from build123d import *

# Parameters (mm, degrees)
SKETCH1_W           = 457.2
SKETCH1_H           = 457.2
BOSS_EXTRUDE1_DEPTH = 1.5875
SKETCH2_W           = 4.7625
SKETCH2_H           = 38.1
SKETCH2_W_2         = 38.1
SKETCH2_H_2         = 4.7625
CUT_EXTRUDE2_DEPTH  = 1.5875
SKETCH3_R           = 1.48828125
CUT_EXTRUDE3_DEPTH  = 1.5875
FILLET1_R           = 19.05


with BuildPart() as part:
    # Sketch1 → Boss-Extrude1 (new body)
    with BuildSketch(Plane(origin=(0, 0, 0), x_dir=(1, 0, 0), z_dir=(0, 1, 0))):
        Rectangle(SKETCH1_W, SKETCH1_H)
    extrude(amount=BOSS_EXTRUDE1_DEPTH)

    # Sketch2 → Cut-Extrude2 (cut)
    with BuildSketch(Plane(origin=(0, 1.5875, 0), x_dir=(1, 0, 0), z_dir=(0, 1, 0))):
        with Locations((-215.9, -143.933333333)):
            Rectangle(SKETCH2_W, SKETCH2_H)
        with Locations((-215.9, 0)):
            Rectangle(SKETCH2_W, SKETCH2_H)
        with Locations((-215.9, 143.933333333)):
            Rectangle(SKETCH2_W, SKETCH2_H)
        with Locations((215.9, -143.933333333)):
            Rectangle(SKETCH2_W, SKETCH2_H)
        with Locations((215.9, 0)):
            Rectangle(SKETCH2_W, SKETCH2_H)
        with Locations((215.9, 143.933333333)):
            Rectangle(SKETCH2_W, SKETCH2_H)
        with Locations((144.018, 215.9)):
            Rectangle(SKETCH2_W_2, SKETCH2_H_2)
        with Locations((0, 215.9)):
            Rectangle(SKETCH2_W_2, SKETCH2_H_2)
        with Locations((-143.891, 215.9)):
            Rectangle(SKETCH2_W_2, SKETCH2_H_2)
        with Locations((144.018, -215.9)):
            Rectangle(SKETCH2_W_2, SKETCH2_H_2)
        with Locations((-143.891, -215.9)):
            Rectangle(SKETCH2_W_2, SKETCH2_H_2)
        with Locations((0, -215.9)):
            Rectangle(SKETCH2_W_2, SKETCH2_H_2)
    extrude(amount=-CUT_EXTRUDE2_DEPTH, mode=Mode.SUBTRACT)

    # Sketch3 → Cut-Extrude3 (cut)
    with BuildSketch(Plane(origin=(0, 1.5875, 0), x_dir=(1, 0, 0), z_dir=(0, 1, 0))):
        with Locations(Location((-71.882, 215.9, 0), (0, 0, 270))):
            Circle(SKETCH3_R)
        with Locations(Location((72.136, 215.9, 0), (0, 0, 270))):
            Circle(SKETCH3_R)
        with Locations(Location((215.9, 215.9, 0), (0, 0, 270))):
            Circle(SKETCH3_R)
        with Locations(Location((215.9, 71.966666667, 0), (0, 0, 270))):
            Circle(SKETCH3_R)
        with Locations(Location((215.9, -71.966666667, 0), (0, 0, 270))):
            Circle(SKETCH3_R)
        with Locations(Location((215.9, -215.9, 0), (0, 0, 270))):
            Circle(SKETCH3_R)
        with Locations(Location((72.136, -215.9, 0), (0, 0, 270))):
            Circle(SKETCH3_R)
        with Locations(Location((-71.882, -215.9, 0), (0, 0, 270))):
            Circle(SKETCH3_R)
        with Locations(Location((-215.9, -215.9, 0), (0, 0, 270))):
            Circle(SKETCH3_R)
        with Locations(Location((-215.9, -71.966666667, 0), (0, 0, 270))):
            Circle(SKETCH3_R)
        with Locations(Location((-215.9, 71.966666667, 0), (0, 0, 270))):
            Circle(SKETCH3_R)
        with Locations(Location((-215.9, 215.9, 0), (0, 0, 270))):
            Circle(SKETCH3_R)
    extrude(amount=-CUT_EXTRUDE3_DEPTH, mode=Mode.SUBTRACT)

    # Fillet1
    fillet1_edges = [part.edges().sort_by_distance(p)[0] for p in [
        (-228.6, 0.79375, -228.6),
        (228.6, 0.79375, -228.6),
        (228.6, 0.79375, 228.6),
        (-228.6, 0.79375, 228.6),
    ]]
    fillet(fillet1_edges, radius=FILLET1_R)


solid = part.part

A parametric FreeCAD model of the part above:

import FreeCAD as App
import Part
import Sketcher
Q = App.Units.Quantity


def edges_at(feature, points):
    """Names of the edges that pass closest to the given points."""
    edges = feature.Shape.Edges
    near = lambda p: min(range(len(edges)), key=lambda i: edges[i].distToShape(Part.Vertex(*p))[0])
    return sorted({f"Edge{near(p) + 1}" for p in points})


def add_polygon(sketch, points):
    """Adds a closed chain of lines whose ends are joined by coincident constraints."""
    first, n = sketch.GeometryCount, len(points)
    for a, b in zip(points, points[1:] + points[:1]):
        sketch.addGeometry(Part.LineSegment(App.Vector(*a, 0), App.Vector(*b, 0)), False)
    for i in range(n):
        sketch.addConstraint(Sketcher.Constraint("Coincident", first + i, 2, first + (i + 1) % n, 1))

doc = App.newDocument("Part")
body = doc.addObject("PartDesign::Body", "Body")

# Sketch on XZ plane
sketch1 = body.newObject("Sketcher::SketchObject", "Sketch")
sketch1.AttachmentSupport = (doc.getObject("XZ_Plane"), [""])
sketch1.MapMode = "FlatFace"
add_polygon(sketch1, [(-229, -229), (-229, 229), (229, 229), (229, -229)])  # lines 0-3
sketch1.addConstraint([
    Sketcher.Constraint("Vertical", 0),
    Sketcher.Constraint("Horizontal", 1),
    Sketcher.Constraint("Vertical", 2),
    Sketcher.Constraint("Horizontal", 3),
    Sketcher.Constraint("Symmetric", 0, 2, 2, 2, -1, 1),
    Sketcher.Constraint("Equal", 3, 0),
    Sketcher.Constraint("DistanceX", 1, 1, 1, 2, Q("18 in")),
])
pad1 = body.newObject("PartDesign::Pad", "Pad")
pad1.Profile = sketch1
pad1.Length = Q("0.0625 in")
pad1.Reversed = True

# Sketch on XZ plane
sketch2 = body.newObject("Sketcher::SketchObject", "Sketch001")
sketch2.AttachmentSupport = (doc.getObject("XZ_Plane"), [""])
sketch2.MapMode = "FlatFace"
sketch2.AttachmentOffset = App.Placement(App.Vector(0, 0, -0.0625 * 25.4), App.Rotation())
add_polygon(sketch2, [(-218.3, 124.9), (-218.3, 163), (-213.5, 163), (-213.5, 124.9)])  # lines 0-3
add_polygon(sketch2, [(-218.3, -19.1), (-218.3, 19.1), (-213.5, 19.1), (-213.5, -19.1)])  # lines 4-7
add_polygon(sketch2, [(-218.3, -163), (-218.3, -124.9), (-213.5, -124.9), (-213.5, -163)])  # lines 8-11
add_polygon(sketch2, [(213.5, 124.9), (213.5, 163), (218.3, 163), (218.3, 124.9)])  # lines 12-15
add_polygon(sketch2, [(213.5, -19.1), (213.5, 19.1), (218.3, 19.1), (218.3, -19.1)])  # lines 16-19
add_polygon(sketch2, [(213.5, -163), (213.5, -124.9), (218.3, -124.9), (218.3, -163)])  # lines 20-23
add_polygon(sketch2, [(125, -218.3), (125, -213.5), (163.1, -213.5), (163.1, -218.3)])  # lines 24-27
add_polygon(sketch2, [(-19.1, -218.3), (-19.1, -213.5), (19.1, -213.5), (19.1, -218.3)])  # lines 28-31
add_polygon(sketch2, [(-162.9, -218.3), (-162.9, -213.5), (-124.8, -213.5), (-124.8, -218.3)])  # lines 32-35
add_polygon(sketch2, [(125, 213.5), (125, 218.3), (163.1, 218.3), (163.1, 213.5)])  # lines 36-39
add_polygon(sketch2, [(-162.9, 213.5), (-162.9, 218.3), (-124.8, 218.3), (-124.8, 213.5)])  # lines 40-43
add_polygon(sketch2, [(-19.1, 213.5), (-19.1, 218.3), (19.1, 218.3), (19.1, 213.5)])  # lines 44-47
sketch2.addConstraint([
    Sketcher.Constraint("Vertical", 0),
    Sketcher.Constraint("Horizontal", 1),
    Sketcher.Constraint("Vertical", 2),
    Sketcher.Constraint("Horizontal", 3),
    Sketcher.Constraint("Vertical", 4),
    Sketcher.Constraint("Horizontal", 5),
    Sketcher.Constraint("Vertical", 6),
    Sketcher.Constraint("Horizontal", 7),
    Sketcher.Constraint("Vertical", 8),
    Sketcher.Constraint("Horizontal", 9),
    Sketcher.Constraint("Vertical", 10),
    Sketcher.Constraint("Horizontal", 11),
    Sketcher.Constraint("Vertical", 12),
    Sketcher.Constraint("Horizontal", 13),
    Sketcher.Constraint("Vertical", 14),
    Sketcher.Constraint("Horizontal", 15),
    Sketcher.Constraint("Vertical", 16),
    Sketcher.Constraint("Horizontal", 17),
    Sketcher.Constraint("Vertical", 18),
    Sketcher.Constraint("Horizontal", 19),
    Sketcher.Constraint("Vertical", 20),
    Sketcher.Constraint("Horizontal", 21),
    Sketcher.Constraint("Vertical", 22),
    Sketcher.Constraint("Horizontal", 23),
    Sketcher.Constraint("Vertical", 24),
    Sketcher.Constraint("Horizontal", 25),
    Sketcher.Constraint("Vertical", 26),
    Sketcher.Constraint("Horizontal", 27),
    Sketcher.Constraint("Vertical", 28),
    Sketcher.Constraint("Horizontal", 29),
    Sketcher.Constraint("Vertical", 30),
    Sketcher.Constraint("Horizontal", 31),
    Sketcher.Constraint("Vertical", 32),
    Sketcher.Constraint("Horizontal", 33),
    Sketcher.Constraint("Vertical", 34),
    Sketcher.Constraint("Horizontal", 35),
    Sketcher.Constraint("Vertical", 36),
    Sketcher.Constraint("Horizontal", 37),
    Sketcher.Constraint("Vertical", 38),
    Sketcher.Constraint("Horizontal", 39),
    Sketcher.Constraint("Vertical", 40),
    Sketcher.Constraint("Horizontal", 41),
    Sketcher.Constraint("Vertical", 42),
    Sketcher.Constraint("Horizontal", 43),
    Sketcher.Constraint("Vertical", 44),
    Sketcher.Constraint("Horizontal", 45),
    Sketcher.Constraint("Vertical", 46),
    Sketcher.Constraint("Horizontal", 47),
    Sketcher.Constraint("Symmetric", 10, 2, 12, 2, -1, 1),
    Sketcher.Constraint("Symmetric", 8, 2, 14, 2, -1, 1),
    Sketcher.Constraint("Symmetric", 6, 2, 16, 2, -1, 1),
    Sketcher.Constraint("Symmetric", 4, 2, 18, 2, -1, 1),
    Sketcher.Constraint("Symmetric", 2, 2, 20, 2, -1, 1),
    Sketcher.Constraint("Symmetric", 0, 2, 22, 2, -1, 1),
    Sketcher.Constraint("Symmetric", 30, 2, 44, 2, -1, 1),
    Sketcher.Constraint("Symmetric", 28, 2, 46, 2, -1, 1),
    Sketcher.Constraint("Symmetric", 1, 2, 12, 2, -2),
    Sketcher.Constraint("Symmetric", 3, 2, 14, 2, -2),
    Sketcher.Constraint("Symmetric", 27, 2, 36, 2, -1),
    Sketcher.Constraint("Symmetric", 25, 2, 38, 2, -1),
    Sketcher.Constraint("Symmetric", 35, 2, 40, 2, -1),
    Sketcher.Constraint("Symmetric", 33, 2, 42, 2, -1),
    Sketcher.Constraint("Horizontal", 5, 2, 16, 2),
    Sketcher.Constraint("Horizontal", 25, 2, 28, 2),
    Sketcher.Constraint("Horizontal", 27, 2, 30, 2),
    Sketcher.Constraint("Horizontal", 29, 2, 32, 2),
    Sketcher.Constraint("Horizontal", 31, 2, 34, 2),
    Sketcher.Constraint("Vertical", 3, 2, 4, 2),
    Sketcher.Constraint("Vertical", 2, 2, 5, 2),
    Sketcher.Constraint("Vertical", 31, 2, 44, 2),
    Sketcher.Constraint("Equal", 27, 29),
    Sketcher.Constraint("Equal", 31, 33),
    Sketcher.Constraint("Equal", 47, 0),
    Sketcher.Constraint("Equal", 2, 4),
    Sketcher.Constraint("Equal", 23, 24),
    Sketcher.Constraint("DistanceX", 25, 1, 25, 2, Q("1.5 in")),
    Sketcher.Constraint("DistanceX", 0, 2, 12, 2, Q("17 in")),
    Sketcher.Constraint("DistanceX", 1, 1, 1, 2, Q("0.1875 in")),
    Sketcher.Constraint("DistanceX", -1, 1, 24, 2, Q("4.92 in")),
    Sketcher.Constraint("DistanceY", 24, 2, -1, 1, Q("8.40625 in")),
    Sketcher.Constraint("DistanceX", 32, 2, -1, 1, Q("6.415 in")),
    Sketcher.Constraint("DistanceY", -1, 1, 0, 2, 162.983333),
])
pocket1 = body.newObject("PartDesign::Pocket", "Pocket")
pocket1.Profile = sketch2
pocket1.Length = Q("0.0625 in")
pocket1.Reversed = True

# Sketch on XZ plane
sketch3 = body.newObject("Sketcher::SketchObject", "Sketch002")
sketch3.AttachmentSupport = (doc.getObject("XZ_Plane"), [""])
sketch3.MapMode = "FlatFace"
sketch3.AttachmentOffset = App.Placement(App.Vector(0, 0, -0.0625 * 25.4), App.Rotation())
sketch3.addGeometry([
    Part.Circle(App.Vector(-71.9, -215.9, 0), App.Vector(0, 0, 1), 1.5),  # 0
    Part.Circle(App.Vector(72.1, -215.9, 0), App.Vector(0, 0, 1), 1.5),  # 1
    Part.Circle(App.Vector(215.9, -215.9, 0), App.Vector(0, 0, 1), 1.5),  # 2
    Part.Circle(App.Vector(215.9, -72, 0), App.Vector(0, 0, 1), 1.5),  # 3
    Part.Circle(App.Vector(215.9, 72, 0), App.Vector(0, 0, 1), 1.5),  # 4
    Part.Circle(App.Vector(215.9, 215.9, 0), App.Vector(0, 0, 1), 1.5),  # 5
    Part.Circle(App.Vector(72.1, 215.9, 0), App.Vector(0, 0, 1), 1.5),  # 6
    Part.Circle(App.Vector(-71.9, 215.9, 0), App.Vector(0, 0, 1), 1.5),  # 7
    Part.Circle(App.Vector(-215.9, 215.9, 0), App.Vector(0, 0, 1), 1.5),  # 8
    Part.Circle(App.Vector(-215.9, 72, 0), App.Vector(0, 0, 1), 1.5),  # 9
    Part.Circle(App.Vector(-215.9, -72, 0), App.Vector(0, 0, 1), 1.5),  # 10
    Part.Circle(App.Vector(-215.9, -215.9, 0), App.Vector(0, 0, 1), 1.5),  # 11
], False)
sketch3.addConstraint([
    Sketcher.Constraint("Equal", 0, 1),
    Sketcher.Constraint("Equal", 1, 2),
    Sketcher.Constraint("Equal", 2, 3),
    Sketcher.Constraint("Equal", 3, 4),
    Sketcher.Constraint("Equal", 4, 5),
    Sketcher.Constraint("Equal", 5, 6),
    Sketcher.Constraint("Equal", 6, 7),
    Sketcher.Constraint("Equal", 7, 8),
    Sketcher.Constraint("Equal", 8, 9),
    Sketcher.Constraint("Equal", 9, 10),
    Sketcher.Constraint("Equal", 10, 11),
    Sketcher.Constraint("Symmetric", 2, 3, 8, 3, -1, 1),
    Sketcher.Constraint("Symmetric", 3, 3, 9, 3, -1, 1),
    Sketcher.Constraint("Symmetric", 4, 3, 10, 3, -1, 1),
    Sketcher.Constraint("Symmetric", 5, 3, 11, 3, -1, 1),
    Sketcher.Constraint("Symmetric", 5, 3, 8, 3, -2),
    Sketcher.Constraint("Symmetric", 4, 3, 9, 3, -2),
    Sketcher.Constraint("Symmetric", 1, 3, 6, 3, -1),
    Sketcher.Constraint("Symmetric", 0, 3, 7, 3, -1),
    Sketcher.Constraint("Horizontal", 0, 3, 1, 3),
    Sketcher.Constraint("Horizontal", 1, 3, 2, 3),
    Sketcher.Constraint("Vertical", 2, 3, 3, 3),
    Sketcher.Constraint("DistanceY", 2, 3, 5, 3, Q("17 in")),
    Sketcher.Constraint("DistanceX", 8, 3, 5, 3, Q("17 in")),
    Sketcher.Constraint("DistanceX", 0, 3, -1, 1, Q("2.83 in")),
    Sketcher.Constraint("DistanceX", -1, 1, 1, 3, Q("2.84 in")),
    Sketcher.Constraint("Diameter", 0, 2.976562),
    Sketcher.Constraint("DistanceY", 3, 3, -1, 1, 71.966667),
])
pocket2 = body.newObject("PartDesign::Pocket", "Pocket001")
pocket2.Profile = sketch3
pocket2.Length = Q("0.0625 in")
pocket2.Reversed = True
doc.recompute()

fillet = body.newObject("PartDesign::Fillet", "Fillet")
fillet.Base = (pocket2, edges_at(pocket2, [
    (-228.6, 0.794, -228.6),
    (228.6, 0.794, -228.6),
    (228.6, 0.794, 228.6),
    (-228.6, 0.794, 228.6),
]))
fillet.Radius = Q("0.75 in")

doc.recompute()
